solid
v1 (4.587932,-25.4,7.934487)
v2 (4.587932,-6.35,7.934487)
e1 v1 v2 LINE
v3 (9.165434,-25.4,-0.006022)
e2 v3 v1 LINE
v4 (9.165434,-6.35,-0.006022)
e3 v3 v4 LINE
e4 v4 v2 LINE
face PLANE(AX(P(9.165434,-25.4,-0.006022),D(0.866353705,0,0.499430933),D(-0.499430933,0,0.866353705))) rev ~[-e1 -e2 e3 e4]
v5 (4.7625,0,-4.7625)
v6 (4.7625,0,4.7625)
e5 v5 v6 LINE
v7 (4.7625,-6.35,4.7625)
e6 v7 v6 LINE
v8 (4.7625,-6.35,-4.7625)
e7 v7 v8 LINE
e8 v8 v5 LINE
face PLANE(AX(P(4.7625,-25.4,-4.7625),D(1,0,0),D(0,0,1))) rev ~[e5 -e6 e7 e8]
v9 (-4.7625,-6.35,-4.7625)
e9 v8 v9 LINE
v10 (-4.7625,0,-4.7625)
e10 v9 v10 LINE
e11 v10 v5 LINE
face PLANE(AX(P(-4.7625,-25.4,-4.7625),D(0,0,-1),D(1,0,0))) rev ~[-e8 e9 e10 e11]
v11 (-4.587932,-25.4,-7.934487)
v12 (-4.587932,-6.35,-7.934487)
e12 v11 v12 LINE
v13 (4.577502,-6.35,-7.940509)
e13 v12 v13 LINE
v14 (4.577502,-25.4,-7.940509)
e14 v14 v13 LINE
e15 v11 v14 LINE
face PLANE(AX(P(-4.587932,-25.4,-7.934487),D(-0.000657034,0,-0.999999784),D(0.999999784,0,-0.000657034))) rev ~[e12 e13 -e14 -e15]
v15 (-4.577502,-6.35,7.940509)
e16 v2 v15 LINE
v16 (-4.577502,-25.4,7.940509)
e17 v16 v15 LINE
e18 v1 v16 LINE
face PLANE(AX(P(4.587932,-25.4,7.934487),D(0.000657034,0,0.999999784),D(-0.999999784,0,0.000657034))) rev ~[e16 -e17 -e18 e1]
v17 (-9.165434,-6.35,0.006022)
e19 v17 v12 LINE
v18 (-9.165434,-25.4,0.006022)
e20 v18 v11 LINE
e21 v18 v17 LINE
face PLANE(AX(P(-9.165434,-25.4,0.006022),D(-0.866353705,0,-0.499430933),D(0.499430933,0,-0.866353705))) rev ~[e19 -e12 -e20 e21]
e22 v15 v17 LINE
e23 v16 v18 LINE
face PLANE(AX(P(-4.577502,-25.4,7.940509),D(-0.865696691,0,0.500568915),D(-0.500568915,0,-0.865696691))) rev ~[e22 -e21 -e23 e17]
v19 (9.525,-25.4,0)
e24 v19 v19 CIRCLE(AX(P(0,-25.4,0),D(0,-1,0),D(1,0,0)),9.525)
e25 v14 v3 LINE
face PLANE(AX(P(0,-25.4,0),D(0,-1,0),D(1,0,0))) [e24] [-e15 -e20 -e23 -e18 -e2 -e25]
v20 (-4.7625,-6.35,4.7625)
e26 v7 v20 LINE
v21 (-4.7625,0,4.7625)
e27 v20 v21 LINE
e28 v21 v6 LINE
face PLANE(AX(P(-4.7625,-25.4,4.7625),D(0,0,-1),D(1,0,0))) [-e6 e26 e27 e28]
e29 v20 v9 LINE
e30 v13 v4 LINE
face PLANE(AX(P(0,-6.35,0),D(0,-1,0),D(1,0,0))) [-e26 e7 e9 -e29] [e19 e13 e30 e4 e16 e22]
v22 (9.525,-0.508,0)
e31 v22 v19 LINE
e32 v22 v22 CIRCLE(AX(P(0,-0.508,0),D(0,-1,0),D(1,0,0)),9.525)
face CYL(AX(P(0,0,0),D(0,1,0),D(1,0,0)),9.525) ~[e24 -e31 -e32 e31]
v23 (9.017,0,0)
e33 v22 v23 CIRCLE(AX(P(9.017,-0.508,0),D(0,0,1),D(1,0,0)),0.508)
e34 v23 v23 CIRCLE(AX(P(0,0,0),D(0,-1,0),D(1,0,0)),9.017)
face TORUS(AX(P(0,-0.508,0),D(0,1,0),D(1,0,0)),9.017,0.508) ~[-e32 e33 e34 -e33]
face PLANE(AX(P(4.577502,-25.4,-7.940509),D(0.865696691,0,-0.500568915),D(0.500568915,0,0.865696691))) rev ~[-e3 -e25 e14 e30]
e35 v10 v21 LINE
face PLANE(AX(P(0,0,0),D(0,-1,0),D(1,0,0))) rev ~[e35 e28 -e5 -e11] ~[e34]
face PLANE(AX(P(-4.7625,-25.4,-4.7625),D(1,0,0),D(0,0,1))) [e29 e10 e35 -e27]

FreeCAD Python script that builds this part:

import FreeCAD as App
import Part
import Sketcher

V = App.Vector
Q = App.Units.Quantity


def edges_at(feature, points):
    """Names of the edges that pass closest to the given points."""
    edges = feature.Shape.Edges
    near = lambda p: min(range(len(edges)), key=lambda i: edges[i].distToShape(Part.Vertex(*p))[0])
    return sorted({f"Edge{near(p) + 1}" for p in points})


def add_polygon(sketch, points):
    """Adds a closed chain of lines whose ends are joined by coincident constraints."""
    first, n = sketch.GeometryCount, len(points)
    for a, b in zip(points, points[1:] + points[:1]):
        sketch.addGeometry(Part.LineSegment(App.Vector(*a, 0), App.Vector(*b, 0)), False)
    for i in range(n):
        sketch.addConstraint(Sketcher.Constraint("Coincident", first + i, 2, first + (i + 1) % n, 1))

doc = App.newDocument("Part")
body = doc.addObject("PartDesign::Body", "Body")

sketch1 = body.newObject("Sketcher::SketchObject", "Sketch")
sketch1.AttachmentSupport = (doc.getObject("XZ_Plane"), [""])
sketch1.MapMode = "FlatFace"
sketch1.addGeometry(Part.Circle(V(0, 0, 0), V(0, 0, 1), 10), False)
sketch1.addConstraint([
    Sketcher.Constraint("Coincident", 0, 3, -1, 1),
    Sketcher.Constraint("Diameter", 0, Q("0.75 in")),
])
pad1 = body.newObject("PartDesign::Pad", "Pad")
pad1.Profile = sketch1
pad1.Length = Q("1 in")

sketch2 = body.newObject("Sketcher::SketchObject", "Sketch001")
sketch2.AttachmentSupport = (doc.getObject("XZ_Plane"), [""])
sketch2.MapMode = "FlatFace"
sketch2.AttachmentOffset = App.Placement(V(0, 0, 1 * 25.4), App.Rotation())
add_polygon(sketch2, [(-5, 5), (-5, -5), (5, -5), (5, 5)])
sketch2.addConstraint([
    Sketcher.Constraint("Vertical", 0),
    Sketcher.Constraint("Horizontal", 1),
    Sketcher.Constraint("Vertical", 2),
    Sketcher.Constraint("Horizontal", 3),
    Sketcher.Constraint("Symmetric", 0, 2, 2, 2, -1, 1),
    Sketcher.Constraint("Equal", 3, 0),
    Sketcher.Constraint("DistanceX", 1, 1, 1, 2, Q("0.375 in")),
])
pocket1 = body.newObject("PartDesign::Pocket", "Pocket")
pocket1.Profile = sketch2
pocket1.Type = "ThroughAll"

sketch3 = body.newObject("Sketcher::SketchObject", "Sketch002")
sketch3.AttachmentSupport = (doc.getObject("XZ_Plane"), [""])
sketch3.MapMode = "FlatFace"
sketch3.AttachmentOffset = App.Placement(V(0, 0, 1 * 25.4), App.Rotation())
add_polygon(sketch3, [(5, -8), (9, 0), (5, 8), (-5, 8), (-9, 0), (-5, -8)])
sketch3.addConstraint([
    Sketcher.Constraint("Symmetric", 0, 2, 3, 2, -1, 1),
    Sketcher.Constraint("Symmetric", 1, 2, 4, 2, -1, 1),
    Sketcher.Constraint("Symmetric", 2, 2, 5, 2, -1, 1),
    Sketcher.Constraint("Equal", 0, 1),
    Sketcher.Constraint("Equal", 1, 2),
    Sketcher.Constraint("DistanceY", 4, 2, 2, 2, Q("0.6249998 in")),
    Sketcher.Constraint("DistanceX", 1, 2, 0, 2, 4.577502),
    Sketcher.Constraint("DistanceY", 0, 2, -1, 1, 0.006022),
    Sketcher.Constraint("DistanceY", -1, 1, 2, 2, 7.940509),
])
pocket2 = body.newObject("PartDesign::Pocket", "Pocket001")
pocket2.Profile = sketch3
pocket2.Length = Q("0.75 in")
doc.recompute()

fillet = body.newObject("PartDesign::Fillet", "Fillet")
fillet.Base = (pocket2, edges_at(pocket2, [(-9.525, 0, 0)]))
fillet.Radius = Q("0.02 in")

doc.recompute()
